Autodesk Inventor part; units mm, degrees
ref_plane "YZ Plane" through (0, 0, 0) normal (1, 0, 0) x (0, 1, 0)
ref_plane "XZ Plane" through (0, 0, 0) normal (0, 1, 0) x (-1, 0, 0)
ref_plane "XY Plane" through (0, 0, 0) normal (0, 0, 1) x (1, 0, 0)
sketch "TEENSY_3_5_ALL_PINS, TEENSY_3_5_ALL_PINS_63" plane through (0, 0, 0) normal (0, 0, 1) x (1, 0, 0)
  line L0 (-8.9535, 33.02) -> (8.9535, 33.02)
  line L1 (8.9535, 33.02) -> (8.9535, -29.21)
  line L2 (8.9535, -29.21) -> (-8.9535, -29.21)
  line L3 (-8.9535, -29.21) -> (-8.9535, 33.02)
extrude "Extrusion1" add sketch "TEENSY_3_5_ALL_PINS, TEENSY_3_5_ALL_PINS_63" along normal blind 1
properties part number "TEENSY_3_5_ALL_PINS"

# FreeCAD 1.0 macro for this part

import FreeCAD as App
import Part
import Sketcher

V = App.Vector
Q = App.Units.Quantity

doc = App.newDocument("Part")
body = doc.addObject("PartDesign::Body", "Body")

# Sketch on XY plane
sketch1 = body.newObject("Sketcher::SketchObject", "Sketch")
sketch1.AttachmentSupport = (doc.getObject("XY_Plane"), [""])
sketch1.MapMode = "FlatFace"
sketch1.addGeometry([
    Part.LineSegment(V(9, 33, 0), V(-9, 33, 0)),
    Part.LineSegment(V(-9, 33, 0), V(-9, -29, 0)),
    Part.LineSegment(V(-9, -29, 0), V(9, -29, 0)),
    Part.LineSegment(V(9, -29, 0), V(9, 33, 0)),
], False)
sketch1.addConstraint([
    Sketcher.Constraint("Coincident", 0, 2, 1, 1),
    Sketcher.Constraint("Coincident", 1, 2, 2, 1),
    Sketcher.Constraint("Coincident", 2, 2, 3, 1),
    Sketcher.Constraint("Coincident", 3, 2, 0, 1),
    Sketcher.Constraint("Horizontal", 0),
    Sketcher.Constraint("Vertical", 1),
    Sketcher.Constraint("Horizontal", 2),
    Sketcher.Constraint("Vertical", 3),
    Sketcher.Constraint("DistanceY", 1, 2, 1, 1, Q("2.45 in")),
    Sketcher.Constraint("DistanceY", -1, 1, 0, 2, Q("1.3 in")),
    Sketcher.Constraint("DistanceX", 0, 2, 0, 1, Q("0.705 in")),
    Sketcher.Constraint("DistanceX", 0, 2, -1, 1, Q("0.3525 in")),
])
pad1 = body.newObject("PartDesign::Pad", "Pad")
pad1.Profile = sketch1
pad1.Length = 1

doc.recompute()
